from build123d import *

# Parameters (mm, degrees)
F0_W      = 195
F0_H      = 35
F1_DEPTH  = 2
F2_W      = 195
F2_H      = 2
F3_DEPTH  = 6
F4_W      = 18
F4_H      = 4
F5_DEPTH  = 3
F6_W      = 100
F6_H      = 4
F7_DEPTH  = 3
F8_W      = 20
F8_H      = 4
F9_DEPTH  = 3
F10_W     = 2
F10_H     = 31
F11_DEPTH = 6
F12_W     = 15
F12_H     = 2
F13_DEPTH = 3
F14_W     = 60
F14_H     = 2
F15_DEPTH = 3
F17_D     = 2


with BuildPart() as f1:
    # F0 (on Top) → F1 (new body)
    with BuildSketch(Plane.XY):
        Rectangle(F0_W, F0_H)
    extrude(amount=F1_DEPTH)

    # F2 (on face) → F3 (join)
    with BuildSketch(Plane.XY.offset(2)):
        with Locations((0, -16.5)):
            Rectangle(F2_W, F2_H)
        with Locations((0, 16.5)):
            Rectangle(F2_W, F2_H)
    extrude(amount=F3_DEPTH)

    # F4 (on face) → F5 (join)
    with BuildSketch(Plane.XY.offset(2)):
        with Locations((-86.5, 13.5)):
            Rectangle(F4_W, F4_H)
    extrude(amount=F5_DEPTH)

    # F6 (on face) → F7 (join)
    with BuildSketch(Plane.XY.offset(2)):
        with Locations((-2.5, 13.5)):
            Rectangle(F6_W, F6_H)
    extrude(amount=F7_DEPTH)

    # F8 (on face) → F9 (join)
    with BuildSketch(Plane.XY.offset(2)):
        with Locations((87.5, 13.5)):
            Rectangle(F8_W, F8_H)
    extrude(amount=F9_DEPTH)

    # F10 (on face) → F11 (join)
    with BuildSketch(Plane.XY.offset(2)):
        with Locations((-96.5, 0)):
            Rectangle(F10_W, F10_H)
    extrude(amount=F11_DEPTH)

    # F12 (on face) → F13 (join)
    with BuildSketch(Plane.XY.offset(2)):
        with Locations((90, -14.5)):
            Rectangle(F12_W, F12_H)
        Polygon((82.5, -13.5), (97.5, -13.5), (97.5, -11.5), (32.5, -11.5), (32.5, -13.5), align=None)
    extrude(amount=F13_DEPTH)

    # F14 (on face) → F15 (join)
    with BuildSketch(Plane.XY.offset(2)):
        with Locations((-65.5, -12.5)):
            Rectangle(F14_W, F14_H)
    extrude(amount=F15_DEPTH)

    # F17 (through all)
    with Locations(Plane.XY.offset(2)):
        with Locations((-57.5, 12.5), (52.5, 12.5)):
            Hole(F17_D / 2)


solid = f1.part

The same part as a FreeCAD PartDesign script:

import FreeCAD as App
import Part
import Sketcher


def add_polygon(sketch, points):
    """Adds a closed chain of lines whose ends are joined by coincident constraints."""
    first, n = sketch.GeometryCount, len(points)
    for a, b in zip(points, points[1:] + points[:1]):
        sketch.addGeometry(Part.LineSegment(App.Vector(*a, 0), App.Vector(*b, 0)), False)
    for i in range(n):
        sketch.addConstraint(Sketcher.Constraint("Coincident", first + i, 2, first + (i + 1) % n, 1))

doc = App.newDocument("Part")
params = doc.addObject("Spreadsheet::Sheet", "Params")
for row, (alias, value) in enumerate([
    ("sketch1_width", "195 mm"),
    ("sketch1_height", "35 mm"),
    ("pad1_length", "2 mm"),
    ("sketch2_width", "195 mm"),
    ("sketch2_height", "2 mm"),
    ("pad2_length", "6 mm"),
    ("sketch3_width", "18 mm"),
    ("sketch3_height", "4 mm"),
    ("pad3_length", "3 mm"),
    ("sketch4_width", "100 mm"),
    ("sketch4_height", "4 mm"),
    ("pad4_length", "3 mm"),
    ("sketch5_width", "20 mm"),
    ("sketch5_height", "4 mm"),
    ("pad5_length", "3 mm"),
    ("sketch6_width", "2 mm"),
    ("sketch6_height", "31 mm"),
    ("pad6_length", "6 mm"),
    ("sketch7_width", "15 mm"),
    ("sketch7_width2", "65 mm"),
    ("sketch7_height", "2 mm"),
    ("pad7_length", "3 mm"),
    ("sketch8_width", "60 mm"),
    ("sketch8_height", "2 mm"),
    ("pad8_length", "3 mm"),
    ("sketch9_diameter", "2 mm"),
    ("hole_diameter", "2 mm"),
], start=1):
    params.set(f"A{row}", alias)
    params.set(f"B{row}", "=" + value)
    params.setAlias(f"B{row}", alias)

body = doc.addObject("PartDesign::Body", "Body")

sketch1 = doc.addObject("Sketcher::SketchObject", "Sketch")
body.addObject(sketch1)
sketch1.AttachmentSupport = (doc.XY_Plane, [""])
sketch1.MapMode = "FlatFace"
add_polygon(sketch1, [(-98, 18), (-98, -18), (98, -18), (98, 18)])
sketch1.addConstraint(Sketcher.Constraint("Vertical", 0))
sketch1.addConstraint(Sketcher.Constraint("Horizontal", 1))
sketch1.addConstraint(Sketcher.Constraint("Vertical", 2))
sketch1.addConstraint(Sketcher.Constraint("Horizontal", 3))
sketch1.addConstraint(Sketcher.Constraint("Symmetric", 0, 2, 2, 2, -1, 1))
sketch1.addConstraint(Sketcher.Constraint("DistanceX", 1, 1, 1, 2, 195.0))
sketch1.addConstraint(Sketcher.Constraint("DistanceY", 0, 2, 0, 1, 35.0))
sketch1.setExpression("Constraints[9]", "Params.sketch1_width")
sketch1.setExpression("Constraints[10]", "Params.sketch1_height")
pad1 = doc.addObject("PartDesign::Pad", "Pad")
body.addObject(pad1)
pad1.Profile = sketch1
pad1.setExpression("Length", "Params.pad1_length")

sketch2 = doc.addObject("Sketcher::SketchObject", "Sketch001")
body.addObject(sketch2)
sketch2.AttachmentSupport = (doc.XY_Plane, [""])
sketch2.MapMode = "FlatFace"
sketch2.AttachmentOffset = App.Placement(App.Vector(0, 0, 2), App.Rotation())
add_polygon(sketch2, [(-97.5, -15.5), (-97.5, -17.5), (97.5, -17.5), (97.5, -15.5)])
add_polygon(sketch2, [(-97.5, 17.5), (-97.5, 15.5), (97.5, 15.5), (97.5, 17.5)])
sketch2.addConstraint(Sketcher.Constraint("Vertical", 0))
sketch2.addConstraint(Sketcher.Constraint("Horizontal", 1))
sketch2.addConstraint(Sketcher.Constraint("Vertical", 2))
sketch2.addConstraint(Sketcher.Constraint("Horizontal", 3))
sketch2.addConstraint(Sketcher.Constraint("Vertical", 4))
sketch2.addConstraint(Sketcher.Constraint("Horizontal", 5))
sketch2.addConstraint(Sketcher.Constraint("Vertical", 6))
sketch2.addConstraint(Sketcher.Constraint("Horizontal", 7))
sketch2.addConstraint(Sketcher.Constraint("Symmetric", 2, 2, 4, 2, -1, 1))
sketch2.addConstraint(Sketcher.Constraint("Symmetric", 0, 2, 6, 2, -1, 1))
sketch2.addConstraint(Sketcher.Constraint("Vertical", 3, 2, 4, 2))
sketch2.addConstraint(Sketcher.Constraint("DistanceX", 1, 1, 1, 2, 195.0))
sketch2.addConstraint(Sketcher.Constraint("DistanceY", 0, 2, 0, 1, 2.0))
sketch2.addConstraint(Sketcher.Constraint("DistanceY", 3, 2, 4, 2, 31.0))
sketch2.setExpression("Constraints[19]", "Params.sketch2_width")
sketch2.setExpression("Constraints[20]", "Params.sketch2_height")
pad2 = doc.addObject("PartDesign::Pad", "Pad001")
body.addObject(pad2)
pad2.Profile = sketch2
pad2.setExpression("Length", "Params.pad2_length")

sketch3 = doc.addObject("Sketcher::SketchObject", "Sketch002")
body.addObject(sketch3)
sketch3.AttachmentSupport = (doc.XY_Plane, [""])
sketch3.MapMode = "FlatFace"
sketch3.AttachmentOffset = App.Placement(App.Vector(0, 0, 2), App.Rotation())
add_polygon(sketch3, [(-95.5, 15.5), (-95.5, 11.5), (-77.5, 11.5), (-77.5, 15.5)])
sketch3.addConstraint(Sketcher.Constraint("Vertical", 0))
sketch3.addConstraint(Sketcher.Constraint("Horizontal", 1))
sketch3.addConstraint(Sketcher.Constraint("Vertical", 2))
sketch3.addConstraint(Sketcher.Constraint("Horizontal", 3))
sketch3.addConstraint(Sketcher.Constraint("DistanceX", 1, 1, 1, 2, 18.0))
sketch3.addConstraint(Sketcher.Constraint("DistanceY", 0, 2, 0, 1, 4.0))
sketch3.addConstraint(Sketcher.Constraint("DistanceX", 0, 2, -1, 1, 95.5))
sketch3.addConstraint(Sketcher.Constraint("DistanceY", -1, 1, 0, 2, 11.5))
sketch3.setExpression("Constraints[8]", "Params.sketch3_width")
sketch3.setExpression("Constraints[9]", "Params.sketch3_height")
pad3 = doc.addObject("PartDesign::Pad", "Pad002")
body.addObject(pad3)
pad3.Profile = sketch3
pad3.setExpression("Length", "Params.pad3_length")

sketch4 = doc.addObject("Sketcher::SketchObject", "Sketch003")
body.addObject(sketch4)
sketch4.AttachmentSupport = (doc.XY_Plane, [""])
sketch4.MapMode = "FlatFace"
sketch4.AttachmentOffset = App.Placement(App.Vector(0, 0, 2), App.Rotation())
add_polygon(sketch4, [(-52.5, 15.5), (-52.5, 11.5), (47.5, 11.5), (47.5, 15.5)])
sketch4.addConstraint(Sketcher.Constraint("Vertical", 0))
sketch4.addConstraint(Sketcher.Constraint("Horizontal", 1))
sketch4.addConstraint(Sketcher.Constraint("Vertical", 2))
sketch4.addConstraint(Sketcher.Constraint("Horizontal", 3))
sketch4.addConstraint(Sketcher.Constraint("DistanceX", 1, 1, 1, 2, 100.0))
sketch4.addConstraint(Sketcher.Constraint("DistanceY", 0, 2, 0, 1, 4.0))
sketch4.addConstraint(Sketcher.Constraint("DistanceX", 0, 2, -1, 1, 52.5))
sketch4.addConstraint(Sketcher.Constraint("DistanceY", -1, 1, 0, 2, 11.5))
sketch4.setExpression("Constraints[8]", "Params.sketch4_width")
sketch4.setExpression("Constraints[9]", "Params.sketch4_height")
pad4 = doc.addObject("PartDesign::Pad", "Pad003")
body.addObject(pad4)
pad4.Profile = sketch4
pad4.setExpression("Length", "Params.pad4_length")

sketch5 = doc.addObject("Sketcher::SketchObject", "Sketch004")
body.addObject(sketch5)
sketch5.AttachmentSupport = (doc.XY_Plane, [""])
sketch5.MapMode = "FlatFace"
sketch5.AttachmentOffset = App.Placement(App.Vector(0, 0, 2), App.Rotation())
add_polygon(sketch5, [(77.5, 15.5), (77.5, 11.5), (97.5, 11.5), (97.5, 15.5)])
sketch5.addConstraint(Sketcher.Constraint("Vertical", 0))
sketch5.addConstraint(Sketcher.Constraint("Horizontal", 1))
sketch5.addConstraint(Sketcher.Constraint("Vertical", 2))
sketch5.addConstraint(Sketcher.Constraint("Horizontal", 3))
sketch5.addConstraint(Sketcher.Constraint("DistanceX", 1, 1, 1, 2, 20.0))
sketch5.addConstraint(Sketcher.Constraint("DistanceY", 0, 2, 0, 1, 4.0))
sketch5.addConstraint(Sketcher.Constraint("DistanceX", -1, 1, 0, 2, 77.5))
sketch5.addConstraint(Sketcher.Constraint("DistanceY", -1, 1, 0, 2, 11.5))
sketch5.setExpression("Constraints[8]", "Params.sketch5_width")
sketch5.setExpression("Constraints[9]", "Params.sketch5_height")
pad5 = doc.addObject("PartDesign::Pad", "Pad004")
body.addObject(pad5)
pad5.Profile = sketch5
pad5.setExpression("Length", "Params.pad5_length")

sketch6 = doc.addObject("Sketcher::SketchObject", "Sketch005")
body.addObject(sketch6)
sketch6.AttachmentSupport = (doc.XY_Plane, [""])
sketch6.MapMode = "FlatFace"
sketch6.AttachmentOffset = App.Placement(App.Vector(0, 0, 2), App.Rotation())
add_polygon(sketch6, [(-97.5, 15.5), (-97.5, -15.5), (-95.5, -15.5), (-95.5, 15.5)])
sketch6.addConstraint(Sketcher.Constraint("Vertical", 0))
sketch6.addConstraint(Sketcher.Constraint("Horizontal", 1))
sketch6.addConstraint(Sketcher.Constraint("Vertical", 2))
sketch6.addConstraint(Sketcher.Constraint("Horizontal", 3))
sketch6.addConstraint(Sketcher.Constraint("DistanceX", 1, 1, 1, 2, 2.0))
sketch6.addConstraint(Sketcher.Constraint("DistanceY", 0, 2, 0, 1, 31.0))
sketch6.addConstraint(Sketcher.Constraint("DistanceX", 0, 2, -1, 1, 97.5))
sketch6.addConstraint(Sketcher.Constraint("DistanceY", 0, 2, -1, 1, 15.5))
sketch6.setExpression("Constraints[8]", "Params.sketch6_width")
sketch6.setExpression("Constraints[9]", "Params.sketch6_height")
pad6 = doc.addObject("PartDesign::Pad", "Pad005")
body.addObject(pad6)
pad6.Profile = sketch6
pad6.setExpression("Length", "Params.pad6_length")

sketch7 = doc.addObject("Sketcher::SketchObject", "Sketch006")
body.addObject(sketch7)
sketch7.AttachmentSupport = (doc.XY_Plane, [""])
sketch7.MapMode = "FlatFace"
sketch7.AttachmentOffset = App.Placement(App.Vector(0, 0, 2), App.Rotation())
add_polygon(sketch7, [(82.5, -13.5), (82.5, -15.5), (97.5, -15.5), (97.5, -11.5), (32.5, -11.5), (32.5, -13.5)])
sketch7.addConstraint(Sketcher.Constraint("Vertical", 0))
sketch7.addConstraint(Sketcher.Constraint("Horizontal", 1))
sketch7.addConstraint(Sketcher.Constraint("Vertical", 2))
sketch7.addConstraint(Sketcher.Constraint("Horizontal", 3))
sketch7.addConstraint(Sketcher.Constraint("Vertical", 4))
sketch7.addConstraint(Sketcher.Constraint("Horizontal", 5))
sketch7.addConstraint(Sketcher.Constraint("Equal", 0, 4))
sketch7.addConstraint(Sketcher.Constraint("DistanceX", 1, 1, 1, 2, 15.0))
sketch7.addConstraint(Sketcher.Constraint("DistanceX", 3, 2, 3, 1, 65.0))
sketch7.addConstraint(Sketcher.Constraint("DistanceY", 0, 2, 0, 1, 2.0))
sketch7.addConstraint(Sketcher.Constraint("DistanceX", -1, 1, 0, 2, 82.5))
sketch7.addConstraint(Sketcher.Constraint("DistanceY", 0, 2, -1, 1, 15.5))
sketch7.setExpression("Constraints[13]", "Params.sketch7_width")
sketch7.setExpression("Constraints[14]", "Params.sketch7_width2")
sketch7.setExpression("Constraints[15]", "Params.sketch7_height")
pad7 = doc.addObject("PartDesign::Pad", "Pad006")
body.addObject(pad7)
pad7.Profile = sketch7
pad7.setExpression("Length", "Params.pad7_length")

sketch8 = doc.addObject("Sketcher::SketchObject", "Sketch007")
body.addObject(sketch8)
sketch8.AttachmentSupport = (doc.XY_Plane, [""])
sketch8.MapMode = "FlatFace"
sketch8.AttachmentOffset = App.Placement(App.Vector(0, 0, 2), App.Rotation())
add_polygon(sketch8, [(-95.5, -11.5), (-95.5, -13.5), (-35.5, -13.5), (-35.5, -11.5)])
sketch8.addConstraint(Sketcher.Constraint("Vertical", 0))
sketch8.addConstraint(Sketcher.Constraint("Horizontal", 1))
sketch8.addConstraint(Sketcher.Constraint("Vertical", 2))
sketch8.addConstraint(Sketcher.Constraint("Horizontal", 3))
sketch8.addConstraint(Sketcher.Constraint("DistanceX", 1, 1, 1, 2, 60.0))
sketch8.addConstraint(Sketcher.Constraint("DistanceY", 0, 2, 0, 1, 2.0))
sketch8.addConstraint(Sketcher.Constraint("DistanceX", 0, 2, -1, 1, 95.5))
sketch8.addConstraint(Sketcher.Constraint("DistanceY", 0, 2, -1, 1, 13.5))
sketch8.setExpression("Constraints[8]", "Params.sketch8_width")
sketch8.setExpression("Constraints[9]", "Params.sketch8_height")
pad8 = doc.addObject("PartDesign::Pad", "Pad007")
body.addObject(pad8)
pad8.Profile = sketch8
pad8.setExpression("Length", "Params.pad8_length")

sketch9 = doc.addObject("Sketcher::SketchObject", "Sketch008")
body.addObject(sketch9)
sketch9.AttachmentSupport = (doc.XY_Plane, [""])
sketch9.MapMode = "FlatFace"
sketch9.AttachmentOffset = App.Placement(App.Vector(0, 0, 2), App.Rotation())
sketch9.addGeometry(Part.Circle(App.Vector(-57.5, 12.5, 0), App.Vector(0, 0, 1), 1), False)
sketch9.addGeometry(Part.Circle(App.Vector(52.5, 12.5, 0), App.Vector(0, 0, 1), 1), False)
sketch9.addConstraint(Sketcher.Constraint("Equal", 0, 1))
sketch9.addConstraint(Sketcher.Constraint("Horizontal", 0, 3, 1, 3))
sketch9.addConstraint(Sketcher.Constraint("Diameter", 0, 2.0))
sketch9.addConstraint(Sketcher.Constraint("DistanceX", 0, 3, 1, 3, 110.0))
sketch9.addConstraint(Sketcher.Constraint("DistanceX", 0, 3, -1, 1, 57.5))
sketch9.addConstraint(Sketcher.Constraint("DistanceY", -1, 1, 0, 3, 12.5))
sketch9.setExpression("Constraints[2]", "Params.sketch9_diameter")
doc.recompute()
hole = doc.addObject("PartDesign::Hole", "Hole")
body.addObject(hole)
hole.Profile = sketch9
hole.ThreadType = "None"
hole.setExpression("Diameter", "Params.hole_diameter")
hole.DepthType = "ThroughAll"

doc.recompute()
